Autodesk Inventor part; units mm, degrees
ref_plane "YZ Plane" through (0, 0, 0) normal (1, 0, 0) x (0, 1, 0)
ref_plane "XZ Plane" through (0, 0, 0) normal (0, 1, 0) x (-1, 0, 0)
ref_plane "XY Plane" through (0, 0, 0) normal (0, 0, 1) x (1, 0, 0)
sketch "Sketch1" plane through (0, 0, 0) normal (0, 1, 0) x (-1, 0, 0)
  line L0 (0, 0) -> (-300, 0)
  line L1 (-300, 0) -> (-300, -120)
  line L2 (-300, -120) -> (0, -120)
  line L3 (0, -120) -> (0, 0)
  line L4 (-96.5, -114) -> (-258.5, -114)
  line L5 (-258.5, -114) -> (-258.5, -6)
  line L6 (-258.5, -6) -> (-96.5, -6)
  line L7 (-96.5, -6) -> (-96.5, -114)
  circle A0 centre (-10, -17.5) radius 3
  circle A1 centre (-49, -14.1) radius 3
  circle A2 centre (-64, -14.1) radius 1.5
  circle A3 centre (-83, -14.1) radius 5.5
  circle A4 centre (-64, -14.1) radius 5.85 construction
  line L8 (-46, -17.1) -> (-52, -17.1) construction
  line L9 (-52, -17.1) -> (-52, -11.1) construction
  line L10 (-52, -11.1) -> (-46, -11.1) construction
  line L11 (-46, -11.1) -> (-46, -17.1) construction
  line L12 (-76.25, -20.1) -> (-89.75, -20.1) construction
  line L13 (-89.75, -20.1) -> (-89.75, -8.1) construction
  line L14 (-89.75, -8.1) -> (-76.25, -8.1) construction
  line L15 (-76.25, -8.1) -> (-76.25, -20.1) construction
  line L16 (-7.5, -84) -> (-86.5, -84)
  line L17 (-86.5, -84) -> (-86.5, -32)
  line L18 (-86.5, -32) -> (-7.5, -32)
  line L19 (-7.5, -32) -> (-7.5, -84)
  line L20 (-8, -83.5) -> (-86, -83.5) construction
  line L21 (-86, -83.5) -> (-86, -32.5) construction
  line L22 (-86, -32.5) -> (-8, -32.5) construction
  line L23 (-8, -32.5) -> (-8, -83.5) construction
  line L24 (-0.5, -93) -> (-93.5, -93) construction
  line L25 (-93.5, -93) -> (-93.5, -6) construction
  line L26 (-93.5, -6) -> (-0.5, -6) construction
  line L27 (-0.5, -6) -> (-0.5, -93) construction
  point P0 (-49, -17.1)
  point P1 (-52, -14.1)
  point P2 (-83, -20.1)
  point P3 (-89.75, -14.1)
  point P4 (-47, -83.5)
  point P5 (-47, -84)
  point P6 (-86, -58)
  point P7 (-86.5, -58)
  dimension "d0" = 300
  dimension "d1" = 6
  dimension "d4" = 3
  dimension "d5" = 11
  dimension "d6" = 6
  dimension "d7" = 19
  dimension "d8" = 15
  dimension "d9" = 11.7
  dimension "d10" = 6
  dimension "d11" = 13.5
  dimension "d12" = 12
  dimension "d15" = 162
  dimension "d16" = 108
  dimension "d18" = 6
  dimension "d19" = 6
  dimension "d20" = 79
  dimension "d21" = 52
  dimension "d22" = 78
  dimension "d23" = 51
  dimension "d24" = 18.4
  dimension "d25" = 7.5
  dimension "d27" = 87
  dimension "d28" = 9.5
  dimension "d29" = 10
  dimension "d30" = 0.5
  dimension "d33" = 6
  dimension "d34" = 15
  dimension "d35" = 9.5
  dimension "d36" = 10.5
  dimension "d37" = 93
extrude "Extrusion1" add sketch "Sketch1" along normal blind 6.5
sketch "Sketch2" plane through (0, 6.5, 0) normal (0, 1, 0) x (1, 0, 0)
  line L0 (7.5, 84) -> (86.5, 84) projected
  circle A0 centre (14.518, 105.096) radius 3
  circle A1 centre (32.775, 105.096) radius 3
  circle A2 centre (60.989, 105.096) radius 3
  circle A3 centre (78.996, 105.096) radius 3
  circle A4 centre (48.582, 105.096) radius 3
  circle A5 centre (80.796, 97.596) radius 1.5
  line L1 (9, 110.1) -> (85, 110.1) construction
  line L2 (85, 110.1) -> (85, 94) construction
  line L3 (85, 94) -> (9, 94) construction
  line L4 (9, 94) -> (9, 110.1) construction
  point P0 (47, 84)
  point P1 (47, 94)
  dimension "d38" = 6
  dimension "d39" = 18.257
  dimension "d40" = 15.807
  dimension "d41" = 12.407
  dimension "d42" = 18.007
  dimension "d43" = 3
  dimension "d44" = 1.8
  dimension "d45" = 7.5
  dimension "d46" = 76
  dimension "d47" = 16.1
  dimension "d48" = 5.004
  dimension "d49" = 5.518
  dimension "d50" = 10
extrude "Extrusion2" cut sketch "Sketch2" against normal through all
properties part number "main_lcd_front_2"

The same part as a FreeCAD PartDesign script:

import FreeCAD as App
import Part
import Sketcher

V = App.Vector


def add_polygon(sketch, points):
    """Adds a closed chain of lines whose ends are joined by coincident constraints."""
    first, n = sketch.GeometryCount, len(points)
    for a, b in zip(points, points[1:] + points[:1]):
        sketch.addGeometry(Part.LineSegment(App.Vector(*a, 0), App.Vector(*b, 0)), False)
    for i in range(n):
        sketch.addConstraint(Sketcher.Constraint("Coincident", first + i, 2, first + (i + 1) % n, 1))

doc = App.newDocument("Part")
body = doc.addObject("PartDesign::Body", "Body")

sketch1 = body.newObject("Sketcher::SketchObject", "Sketch")
sketch1.AttachmentSupport = (doc.getObject("XZ_Plane"), [""])
sketch1.MapMode = "FlatFace"
add_polygon(sketch1, [(0, -120), (0, 0), (300, 0), (300, -120)])
add_polygon(sketch1, [(96.5, -6), (96.5, -114), (258.5, -114), (258.5, -6)])
add_polygon(sketch1, [(7.5, -32), (7.5, -84), (86.5, -84), (86.5, -32)])
sketch1.addGeometry(Part.Circle(V(83, -14.1, 0), V(0, 0, 1), 5.5), False)
sketch1.addGeometry(Part.Circle(V(10, -17.5, 0), V(0, 0, 1), 3), False)
sketch1.addGeometry(Part.Circle(V(64, -14.1, 0), V(0, 0, 1), 1.5), False)
sketch1.addGeometry(Part.Circle(V(49, -14.1, 0), V(0, 0, 1), 3), False)
sketch1.addConstraint(Sketcher.Constraint("Vertical", 0))
sketch1.addConstraint(Sketcher.Constraint("Horizontal", 1))
sketch1.addConstraint(Sketcher.Constraint("Vertical", 2))
sketch1.addConstraint(Sketcher.Constraint("Horizontal", 3))
sketch1.addConstraint(Sketcher.Constraint("Vertical", 4))
sketch1.addConstraint(Sketcher.Constraint("Horizontal", 5))
sketch1.addConstraint(Sketcher.Constraint("Vertical", 6))
sketch1.addConstraint(Sketcher.Constraint("Horizontal", 7))
sketch1.addConstraint(Sketcher.Constraint("Vertical", 8))
sketch1.addConstraint(Sketcher.Constraint("Horizontal", 9))
sketch1.addConstraint(Sketcher.Constraint("Vertical", 10))
sketch1.addConstraint(Sketcher.Constraint("Horizontal", 11))
sketch1.addConstraint(Sketcher.Constraint("Coincident", 0, 2, -1, 1))
sketch1.addConstraint(Sketcher.Constraint("Equal", 13, 15))
sketch1.addConstraint(Sketcher.Constraint("Horizontal", 12, 3, 14, 3))
sketch1.addConstraint(Sketcher.Constraint("Horizontal", 14, 3, 15, 3))
sketch1.addConstraint(Sketcher.Constraint("Diameter", 12, 11.0))
sketch1.addConstraint(Sketcher.Constraint("Diameter", 13, 6.0))
sketch1.addConstraint(Sketcher.Constraint("Diameter", 14, 3.0))
sketch1.addConstraint(Sketcher.Constraint("DistanceX", 1, 1, 1, 2, 300.0))
sketch1.addConstraint(Sketcher.Constraint("DistanceX", 5, 1, 5, 2, 162.0))
sketch1.addConstraint(Sketcher.Constraint("DistanceX", 9, 1, 9, 2, 79.0))
sketch1.addConstraint(Sketcher.Constraint("DistanceY", 4, 2, 4, 1, 108.0))
sketch1.addConstraint(Sketcher.Constraint("DistanceY", 8, 2, 8, 1, 52.0))
sketch1.addConstraint(Sketcher.Constraint("DistanceX", -1, 1, 13, 3, 10.0))
sketch1.addConstraint(Sketcher.Constraint("DistanceY", 6, 2, -1, 1, 6.0))
sketch1.addConstraint(Sketcher.Constraint("DistanceX", 14, 3, 12, 3, 19.0))
sketch1.addConstraint(Sketcher.Constraint("DistanceX", 15, 3, 14, 3, 15.0))
sketch1.addConstraint(Sketcher.Constraint("DistanceY", 3, 2, 4, 2, 6.0))
sketch1.addConstraint(Sketcher.Constraint("DistanceX", 9, 2, 4, 2, 10.0))
sketch1.addConstraint(Sketcher.Constraint("DistanceY", 9, 2, 7, 2, 78.0))
sketch1.addConstraint(Sketcher.Constraint("DistanceX", -1, 1, 8, 2, 7.5))
sketch1.addConstraint(Sketcher.Constraint("DistanceX", 12, 3, 4, 2, 13.5))
sketch1.addConstraint(Sketcher.Constraint("DistanceY", 12, 3, -1, 1, 14.1))
sketch1.addConstraint(Sketcher.Constraint("DistanceY", 13, 3, -1, 1, 17.5))
pad1 = body.newObject("PartDesign::Pad", "Pad")
pad1.Profile = sketch1
pad1.Length = 6.5
pad1.Reversed = True

sketch2 = body.newObject("Sketcher::SketchObject", "Sketch001")
sketch2.AttachmentSupport = (doc.getObject("XZ_Plane"), [""])
sketch2.MapMode = "FlatFace"
sketch2.AttachmentOffset = App.Placement(V(0, 0, -6.5), App.Rotation())
sketch2.addGeometry(Part.Circle(V(14.5, -105.1, 0), V(0, 0, 1), 3), False)
sketch2.addGeometry(Part.Circle(V(32.8, -105.1, 0), V(0, 0, 1), 3), False)
sketch2.addGeometry(Part.Circle(V(61, -105.1, 0), V(0, 0, 1), 3), False)
sketch2.addGeometry(Part.Circle(V(79, -105.1, 0), V(0, 0, 1), 3), False)
sketch2.addGeometry(Part.Circle(V(48.6, -105.1, 0), V(0, 0, 1), 3), False)
sketch2.addGeometry(Part.Circle(V(80.8, -97.6, 0), V(0, 0, 1), 1.5), False)
sketch2.addConstraint(Sketcher.Constraint("Equal", 0, 1))
sketch2.addConstraint(Sketcher.Constraint("Equal", 1, 2))
sketch2.addConstraint(Sketcher.Constraint("Equal", 2, 3))
sketch2.addConstraint(Sketcher.Constraint("Equal", 3, 4))
sketch2.addConstraint(Sketcher.Constraint("Horizontal", 0, 3, 1, 3))
sketch2.addConstraint(Sketcher.Constraint("Horizontal", 1, 3, 2, 3))
sketch2.addConstraint(Sketcher.Constraint("Horizontal", 2, 3, 3, 3))
sketch2.addConstraint(Sketcher.Constraint("Horizontal", 3, 3, 4, 3))
sketch2.addConstraint(Sketcher.Constraint("Diameter", 0, 6.0))
sketch2.addConstraint(Sketcher.Constraint("Diameter", 5, 3.0))
sketch2.addConstraint(Sketcher.Constraint("DistanceX", 3, 3, 5, 3, 1.8))
sketch2.addConstraint(Sketcher.Constraint("DistanceY", 3, 3, 5, 3, 7.5))
sketch2.addConstraint(Sketcher.Constraint("DistanceX", 0, 3, 1, 3, 18.257))
sketch2.addConstraint(Sketcher.Constraint("DistanceX", 2, 3, 3, 3, 18.007))
sketch2.addConstraint(Sketcher.Constraint("DistanceX", 4, 3, 2, 3, 12.407))
sketch2.addConstraint(Sketcher.Constraint("DistanceX", 1, 3, 4, 3, 15.807))
sketch2.addConstraint(Sketcher.Constraint("DistanceX", -1, 1, 0, 3, 14.518))
sketch2.addConstraint(Sketcher.Constraint("DistanceY", 0, 3, -1, 1, 105.096))
pocket1 = body.newObject("PartDesign::Pocket", "Pocket")
pocket1.Profile = sketch2
pocket1.Type = "ThroughAll"
pocket1.Reversed = True

doc.recompute()
